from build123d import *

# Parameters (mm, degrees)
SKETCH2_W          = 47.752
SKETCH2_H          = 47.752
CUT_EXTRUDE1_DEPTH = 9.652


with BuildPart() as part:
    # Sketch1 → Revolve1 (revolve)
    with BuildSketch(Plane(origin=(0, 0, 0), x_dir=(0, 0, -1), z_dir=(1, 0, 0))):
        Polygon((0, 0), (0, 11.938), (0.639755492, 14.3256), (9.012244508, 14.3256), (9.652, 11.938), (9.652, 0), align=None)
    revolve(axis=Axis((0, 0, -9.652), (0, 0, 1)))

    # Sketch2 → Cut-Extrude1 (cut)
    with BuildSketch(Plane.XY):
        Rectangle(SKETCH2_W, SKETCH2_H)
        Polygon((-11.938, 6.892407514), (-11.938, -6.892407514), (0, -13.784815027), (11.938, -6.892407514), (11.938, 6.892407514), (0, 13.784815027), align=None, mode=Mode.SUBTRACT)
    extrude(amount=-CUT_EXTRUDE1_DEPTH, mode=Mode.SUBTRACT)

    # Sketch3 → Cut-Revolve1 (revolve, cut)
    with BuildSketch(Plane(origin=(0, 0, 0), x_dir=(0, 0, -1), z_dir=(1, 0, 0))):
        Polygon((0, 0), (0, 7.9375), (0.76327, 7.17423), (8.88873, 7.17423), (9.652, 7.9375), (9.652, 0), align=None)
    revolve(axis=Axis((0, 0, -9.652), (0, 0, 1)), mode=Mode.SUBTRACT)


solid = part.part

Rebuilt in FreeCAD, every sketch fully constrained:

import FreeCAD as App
import Part
import Sketcher
from FreeCAD import Vector
Q = App.Units.Quantity

doc = App.newDocument("Part")
body = doc.addObject("PartDesign::Body", "Body")

# Sketch on YZ plane
sketch1 = body.newObject("Sketcher::SketchObject", "Sketch")
sketch1.AttachmentSupport = (doc.getObject("YZ_Plane"), [""])
sketch1.MapMode = "FlatFace"
sketch1.addGeometry([
    Part.LineSegment(Vector(11.9, 0, 0), Vector(0, 0, 0)),  # 0
    Part.LineSegment(Vector(0, 0, 0), Vector(0, -9.7, 0)),  # 1
    Part.LineSegment(Vector(0, -9.7, 0), Vector(11.9, -9.7, 0)),  # 2
    Part.LineSegment(Vector(11.9, -9.7, 0), Vector(14.3, -9, 0)),  # 3
    Part.LineSegment(Vector(14.3, -9, 0), Vector(14.3, -0.6, 0)),  # 4
    Part.LineSegment(Vector(14.3, -0.6, 0), Vector(11.9, 0, 0)),  # 5
], False)
sketch1.addConstraint([
    Sketcher.Constraint("Coincident", 0, 2, 1, 1),
    Sketcher.Constraint("Coincident", 1, 2, 2, 1),
    Sketcher.Constraint("Coincident", 2, 2, 3, 1),
    Sketcher.Constraint("Coincident", 3, 2, 4, 1),
    Sketcher.Constraint("Coincident", 4, 2, 5, 1),
    Sketcher.Constraint("Coincident", 5, 2, 0, 1),
    Sketcher.Constraint("Horizontal", 0),
    Sketcher.Constraint("Vertical", 1),
    Sketcher.Constraint("Horizontal", 2),
    Sketcher.Constraint("Vertical", 4),
    Sketcher.Constraint("Coincident", 0, 2, -1, 1),
    Sketcher.Constraint("Vertical", 2, 2, 5, 2),
    Sketcher.Constraint("Equal", 3, 5),
    Sketcher.Constraint("Angle", 3, Q("15 deg")),
    Sketcher.Constraint("DistanceX", 0, 2, 0, 1, Q("0.47 in")),
    Sketcher.Constraint("DistanceY", 1, 2, 1, 1, Q("0.38 in")),
    Sketcher.Constraint("DistanceX", -1, 1, 3, 2, Q("0.564 in")),
])
revolution = body.newObject("PartDesign::Revolution", "Revolution")
revolution.Profile = sketch1
revolution.ReferenceAxis = (sketch1, ["V_Axis"])
revolution.Angle = 360

# Sketch on XY plane
sketch2 = body.newObject("Sketcher::SketchObject", "Sketch001")
sketch2.AttachmentSupport = (doc.getObject("XY_Plane"), [""])
sketch2.MapMode = "FlatFace"
sketch2.addGeometry([
    Part.LineSegment(Vector(-24, 24, 0), Vector(-24, -24, 0)),  # 0
    Part.LineSegment(Vector(-24, -24, 0), Vector(24, -24, 0)),  # 1
    Part.LineSegment(Vector(24, -24, 0), Vector(24, 24, 0)),  # 2
    Part.LineSegment(Vector(24, 24, 0), Vector(-24, 24, 0)),  # 3
    Part.LineSegment(Vector(-12, -7, 0), Vector(-12, 7, 0)),  # 4
    Part.LineSegment(Vector(-12, 7, 0), Vector(0, 14, 0)),  # 5
    Part.LineSegment(Vector(0, 14, 0), Vector(12, 7, 0)),  # 6
    Part.LineSegment(Vector(12, 7, 0), Vector(12, -7, 0)),  # 7
    Part.LineSegment(Vector(12, -7, 0), Vector(0, -14, 0)),  # 8
    Part.LineSegment(Vector(0, -14, 0), Vector(-12, -7, 0)),  # 9
], False)
sketch2.addConstraint([
    Sketcher.Constraint("Coincident", 0, 2, 1, 1),
    Sketcher.Constraint("Coincident", 1, 2, 2, 1),
    Sketcher.Constraint("Coincident", 2, 2, 3, 1),
    Sketcher.Constraint("Coincident", 3, 2, 0, 1),
    Sketcher.Constraint("Coincident", 4, 2, 5, 1),
    Sketcher.Constraint("Coincident", 5, 2, 6, 1),
    Sketcher.Constraint("Coincident", 6, 2, 7, 1),
    Sketcher.Constraint("Coincident", 7, 2, 8, 1),
    Sketcher.Constraint("Coincident", 8, 2, 9, 1),
    Sketcher.Constraint("Coincident", 9, 2, 4, 1),
    Sketcher.Constraint("Vertical", 0),
    Sketcher.Constraint("Horizontal", 1),
    Sketcher.Constraint("Vertical", 2),
    Sketcher.Constraint("Horizontal", 3),
    Sketcher.Constraint("Vertical", 4),
    Sketcher.Constraint("Vertical", 7),
    Sketcher.Constraint("Symmetric", 0, 2, 2, 2, -1, 1),
    Sketcher.Constraint("Symmetric", 4, 2, 7, 2, -1, 1),
    Sketcher.Constraint("Symmetric", 5, 2, 8, 2, -1, 1),
    Sketcher.Constraint("PointOnObject", 5, 2, -2),
    Sketcher.Constraint("Parallel", 6, 9),
    Sketcher.Constraint("Horizontal", 4, 2, 6, 2),
    Sketcher.Constraint("Equal", 3, 0),
    Sketcher.Constraint("Angle", 5, Q("30 deg")),
    Sketcher.Constraint("DistanceX", 1, 1, 1, 2, Q("1.88 in")),
    Sketcher.Constraint("DistanceX", 4, 2, -1, 1, Q("0.47 in")),
    Sketcher.Constraint("DistanceY", 4, 1, 4, 2, 13.784815),
])
pocket1 = body.newObject("PartDesign::Pocket", "Pocket")
pocket1.Profile = sketch2
pocket1.Length = Q("0.38 in")

# Sketch on YZ plane
sketch3 = body.newObject("Sketcher::SketchObject", "Sketch002")
sketch3.AttachmentSupport = (doc.getObject("YZ_Plane"), [""])
sketch3.MapMode = "FlatFace"
sketch3.addGeometry([
    Part.LineSegment(Vector(7.9, 0, 0), Vector(0, 0, 0)),  # 0
    Part.LineSegment(Vector(0, 0, 0), Vector(0, -9.7, 0)),  # 1
    Part.LineSegment(Vector(0, -9.7, 0), Vector(7.9, -9.7, 0)),  # 2
    Part.LineSegment(Vector(7.9, -9.7, 0), Vector(7.2, -8.9, 0)),  # 3
    Part.LineSegment(Vector(7.2, -8.9, 0), Vector(7.2, -0.8, 0)),  # 4
    Part.LineSegment(Vector(7.2, -0.8, 0), Vector(7.9, 0, 0)),  # 5
], False)
sketch3.addConstraint([
    Sketcher.Constraint("Coincident", 0, 2, 1, 1),
    Sketcher.Constraint("Coincident", 1, 2, 2, 1),
    Sketcher.Constraint("Coincident", 2, 2, 3, 1),
    Sketcher.Constraint("Coincident", 3, 2, 4, 1),
    Sketcher.Constraint("Coincident", 4, 2, 5, 1),
    Sketcher.Constraint("Coincident", 5, 2, 0, 1),
    Sketcher.Constraint("Horizontal", 0),
    Sketcher.Constraint("Vertical", 1),
    Sketcher.Constraint("Horizontal", 2),
    Sketcher.Constraint("Vertical", 4),
    Sketcher.Constraint("Coincident", 0, 2, -1, 1),
    Sketcher.Constraint("Perpendicular", 3, 5),
    Sketcher.Constraint("Vertical", 2, 2, 5, 2),
    Sketcher.Constraint("Equal", 3, 5),
    Sketcher.Constraint("DistanceY", 1, 2, 1, 1, Q("0.38 in")),
    Sketcher.Constraint("DistanceX", 0, 2, 0, 1, Q("0.3125 in")),
    Sketcher.Constraint("DistanceY", 4, 1, 4, 2, Q("0.3199 in")),
])
groove = body.newObject("PartDesign::Groove", "Groove")
groove.Profile = sketch3
groove.ReferenceAxis = (sketch3, ["V_Axis"])
groove.Angle = 360

doc.recompute()
